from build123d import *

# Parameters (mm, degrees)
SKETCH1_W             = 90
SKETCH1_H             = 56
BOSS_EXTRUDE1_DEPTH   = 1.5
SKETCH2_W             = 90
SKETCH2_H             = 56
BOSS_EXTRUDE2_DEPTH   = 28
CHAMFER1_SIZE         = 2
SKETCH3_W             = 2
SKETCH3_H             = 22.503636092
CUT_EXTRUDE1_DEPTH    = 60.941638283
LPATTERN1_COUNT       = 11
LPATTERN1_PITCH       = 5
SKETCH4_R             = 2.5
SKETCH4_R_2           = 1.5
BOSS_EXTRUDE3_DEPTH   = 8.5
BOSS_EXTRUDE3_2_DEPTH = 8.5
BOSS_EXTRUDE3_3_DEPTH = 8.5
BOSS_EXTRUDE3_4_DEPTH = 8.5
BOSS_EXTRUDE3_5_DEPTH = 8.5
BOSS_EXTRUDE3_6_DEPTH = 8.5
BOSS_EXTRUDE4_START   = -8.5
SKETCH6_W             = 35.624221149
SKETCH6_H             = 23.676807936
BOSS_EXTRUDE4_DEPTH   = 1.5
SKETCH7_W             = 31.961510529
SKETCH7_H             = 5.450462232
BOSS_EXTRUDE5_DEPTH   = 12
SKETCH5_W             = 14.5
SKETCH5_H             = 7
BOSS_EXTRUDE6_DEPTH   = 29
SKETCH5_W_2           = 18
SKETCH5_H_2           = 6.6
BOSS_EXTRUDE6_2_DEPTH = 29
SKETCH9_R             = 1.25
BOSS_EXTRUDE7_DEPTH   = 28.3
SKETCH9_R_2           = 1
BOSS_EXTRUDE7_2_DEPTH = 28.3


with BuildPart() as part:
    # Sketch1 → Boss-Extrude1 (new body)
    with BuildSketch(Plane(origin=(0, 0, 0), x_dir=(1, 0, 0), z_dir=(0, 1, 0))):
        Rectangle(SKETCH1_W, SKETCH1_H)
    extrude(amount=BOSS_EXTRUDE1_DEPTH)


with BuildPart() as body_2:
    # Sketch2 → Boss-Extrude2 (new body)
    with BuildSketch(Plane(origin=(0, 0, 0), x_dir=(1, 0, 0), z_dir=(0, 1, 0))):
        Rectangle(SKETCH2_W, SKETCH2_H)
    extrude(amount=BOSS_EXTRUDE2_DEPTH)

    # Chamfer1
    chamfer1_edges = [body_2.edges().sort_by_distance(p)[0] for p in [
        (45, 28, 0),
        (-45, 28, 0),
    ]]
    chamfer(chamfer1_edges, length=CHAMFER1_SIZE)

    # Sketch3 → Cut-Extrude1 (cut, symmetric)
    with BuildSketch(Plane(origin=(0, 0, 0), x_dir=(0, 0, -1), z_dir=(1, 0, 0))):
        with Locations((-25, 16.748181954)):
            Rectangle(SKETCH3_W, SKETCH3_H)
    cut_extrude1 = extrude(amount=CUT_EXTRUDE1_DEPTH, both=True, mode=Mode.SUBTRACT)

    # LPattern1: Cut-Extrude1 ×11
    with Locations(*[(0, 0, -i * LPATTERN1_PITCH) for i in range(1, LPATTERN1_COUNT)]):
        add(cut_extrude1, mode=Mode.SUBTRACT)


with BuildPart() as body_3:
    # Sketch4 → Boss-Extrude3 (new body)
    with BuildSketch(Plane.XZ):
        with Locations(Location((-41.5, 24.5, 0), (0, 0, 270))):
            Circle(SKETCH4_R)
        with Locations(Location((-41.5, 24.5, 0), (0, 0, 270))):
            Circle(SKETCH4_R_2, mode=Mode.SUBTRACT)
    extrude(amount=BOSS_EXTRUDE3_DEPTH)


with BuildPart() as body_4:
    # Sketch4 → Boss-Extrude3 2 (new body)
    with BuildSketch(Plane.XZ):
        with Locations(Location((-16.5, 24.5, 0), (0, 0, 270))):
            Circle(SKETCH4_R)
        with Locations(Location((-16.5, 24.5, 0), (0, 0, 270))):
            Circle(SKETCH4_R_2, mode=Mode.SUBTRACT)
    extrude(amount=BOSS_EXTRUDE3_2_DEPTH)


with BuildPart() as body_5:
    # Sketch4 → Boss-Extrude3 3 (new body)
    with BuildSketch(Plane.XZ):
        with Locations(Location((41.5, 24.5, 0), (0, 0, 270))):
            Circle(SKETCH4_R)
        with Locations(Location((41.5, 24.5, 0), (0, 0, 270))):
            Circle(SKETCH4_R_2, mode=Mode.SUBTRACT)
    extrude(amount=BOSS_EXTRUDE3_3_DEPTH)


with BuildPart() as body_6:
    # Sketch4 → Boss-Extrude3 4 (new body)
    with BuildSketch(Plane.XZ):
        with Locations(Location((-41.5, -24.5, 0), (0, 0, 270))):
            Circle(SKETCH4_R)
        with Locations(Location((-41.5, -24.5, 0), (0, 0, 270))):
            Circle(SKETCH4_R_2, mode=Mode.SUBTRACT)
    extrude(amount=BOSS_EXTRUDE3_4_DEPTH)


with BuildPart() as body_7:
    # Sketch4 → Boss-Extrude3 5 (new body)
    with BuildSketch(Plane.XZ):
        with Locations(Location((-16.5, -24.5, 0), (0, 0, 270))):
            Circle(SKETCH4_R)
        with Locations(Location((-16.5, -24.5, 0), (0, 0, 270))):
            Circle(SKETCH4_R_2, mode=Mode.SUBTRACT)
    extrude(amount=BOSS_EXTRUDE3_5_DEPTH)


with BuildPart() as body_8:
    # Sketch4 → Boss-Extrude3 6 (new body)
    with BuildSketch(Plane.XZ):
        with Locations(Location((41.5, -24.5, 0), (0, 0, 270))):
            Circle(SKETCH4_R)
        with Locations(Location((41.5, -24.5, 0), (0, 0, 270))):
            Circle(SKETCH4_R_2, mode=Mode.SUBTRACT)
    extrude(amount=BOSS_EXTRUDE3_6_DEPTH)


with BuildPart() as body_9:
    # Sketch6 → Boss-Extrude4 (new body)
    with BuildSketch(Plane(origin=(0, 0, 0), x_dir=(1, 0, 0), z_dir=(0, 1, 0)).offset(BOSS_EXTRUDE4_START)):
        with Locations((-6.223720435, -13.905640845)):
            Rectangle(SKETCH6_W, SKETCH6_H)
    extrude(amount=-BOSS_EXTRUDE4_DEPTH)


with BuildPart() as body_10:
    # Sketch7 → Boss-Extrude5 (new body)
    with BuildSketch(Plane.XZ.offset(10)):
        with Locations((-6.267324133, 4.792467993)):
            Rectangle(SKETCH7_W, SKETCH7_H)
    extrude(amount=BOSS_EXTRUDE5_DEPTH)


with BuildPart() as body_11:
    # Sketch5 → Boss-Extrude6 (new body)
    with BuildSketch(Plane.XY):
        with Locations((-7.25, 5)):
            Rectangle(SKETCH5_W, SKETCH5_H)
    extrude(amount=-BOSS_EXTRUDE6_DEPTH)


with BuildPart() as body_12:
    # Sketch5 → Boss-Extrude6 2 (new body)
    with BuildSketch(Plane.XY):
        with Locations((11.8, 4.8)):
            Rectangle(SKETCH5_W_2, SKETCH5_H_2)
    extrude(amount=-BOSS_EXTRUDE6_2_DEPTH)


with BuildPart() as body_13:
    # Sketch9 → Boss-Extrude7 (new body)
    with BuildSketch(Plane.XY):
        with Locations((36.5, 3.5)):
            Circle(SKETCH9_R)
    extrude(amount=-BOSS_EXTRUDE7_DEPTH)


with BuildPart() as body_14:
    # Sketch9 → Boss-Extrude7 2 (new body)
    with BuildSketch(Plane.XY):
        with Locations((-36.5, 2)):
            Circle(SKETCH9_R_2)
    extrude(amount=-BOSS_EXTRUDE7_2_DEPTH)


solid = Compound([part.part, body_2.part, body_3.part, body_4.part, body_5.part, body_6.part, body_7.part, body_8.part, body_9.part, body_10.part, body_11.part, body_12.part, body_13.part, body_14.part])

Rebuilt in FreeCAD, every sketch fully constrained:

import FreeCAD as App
import Part
import Sketcher
from FreeCAD import Vector


def edges_at(feature, points):
    """Names of the edges that pass closest to the given points."""
    edges = feature.Shape.Edges
    near = lambda p: min(range(len(edges)), key=lambda i: edges[i].distToShape(Part.Vertex(*p))[0])
    return sorted({f"Edge{near(p) + 1}" for p in points})


def add_polygon(sketch, points):
    """Adds a closed chain of lines whose ends are joined by coincident constraints."""
    first, n = sketch.GeometryCount, len(points)
    for a, b in zip(points, points[1:] + points[:1]):
        sketch.addGeometry(Part.LineSegment(App.Vector(*a, 0), App.Vector(*b, 0)), False)
    for i in range(n):
        sketch.addConstraint(Sketcher.Constraint("Coincident", first + i, 2, first + (i + 1) % n, 1))

doc = App.newDocument("Part")
body = doc.addObject("PartDesign::Body", "Body")

# Sketch on XZ plane
sketch1 = body.newObject("Sketcher::SketchObject", "Sketch")
sketch1.AttachmentSupport = (doc.getObject("XZ_Plane"), [""])
sketch1.MapMode = "FlatFace"
add_polygon(sketch1, [(-45, -28), (-45, 28), (45, 28), (45, -28)])  # lines 0-3
sketch1.addConstraint([
    Sketcher.Constraint("Vertical", 0),
    Sketcher.Constraint("Horizontal", 1),
    Sketcher.Constraint("Vertical", 2),
    Sketcher.Constraint("Horizontal", 3),
    Sketcher.Constraint("Symmetric", 0, 2, 2, 2, -1, 1),
    Sketcher.Constraint("DistanceX", 1, 1, 1, 2, 90.0),
    Sketcher.Constraint("DistanceY", 0, 1, 0, 2, 56.0),
])
pad1 = body.newObject("PartDesign::Pad", "Pad")
pad1.Profile = sketch1
pad1.Length = 1.5
pad1.Reversed = True
body2 = doc.addObject("PartDesign::Body", "Body001")

# Sketch on XZ plane
sketch2 = body2.newObject("Sketcher::SketchObject", "Sketch001")
sketch2.AttachmentSupport = (doc.getObject("XZ_Plane001"), [""])
sketch2.MapMode = "FlatFace"
add_polygon(sketch2, [(-45, -28), (-45, 28), (45, 28), (45, -28)])  # lines 0-3
sketch2.addConstraint([
    Sketcher.Constraint("Vertical", 0),
    Sketcher.Constraint("Horizontal", 1),
    Sketcher.Constraint("Vertical", 2),
    Sketcher.Constraint("Horizontal", 3),
    Sketcher.Constraint("Symmetric", 0, 2, 2, 2, -1, 1),
    Sketcher.Constraint("DistanceX", 1, 1, 1, 2, 90.0),
    Sketcher.Constraint("DistanceY", 0, 1, 0, 2, 56.0),
])
pad2 = body2.newObject("PartDesign::Pad", "Pad001")
pad2.Profile = sketch2
pad2.Length = 28
pad2.Reversed = True
doc.recompute()

chamfer = body2.newObject("PartDesign::Chamfer", "Chamfer")
chamfer.Base = (pad2, edges_at(pad2, [(45, 28, 0), (-45, 28, 0)]))
chamfer.Size = 2

# Sketch on YZ plane
sketch3 = body2.newObject("Sketcher::SketchObject", "Sketch002")
sketch3.AttachmentSupport = (doc.getObject("YZ_Plane001"), [""])
sketch3.MapMode = "FlatFace"
add_polygon(sketch3, [(28, 26), (5.496364, 26), (5.496364, 24), (28, 24)])  # lines 0-3
sketch3.addConstraint([
    Sketcher.Constraint("Horizontal", 0),
    Sketcher.Constraint("Vertical", 1),
    Sketcher.Constraint("Horizontal", 2),
    Sketcher.Constraint("Vertical", 3),
    Sketcher.Constraint("DistanceY", 1, 2, 1, 1, 2.0),
    Sketcher.Constraint("DistanceY", -1, 1, 0, 2, 26.0),
    Sketcher.Constraint("DistanceX", -1, 1, 2, 2, 28.0),
    Sketcher.Constraint("DistanceX", 0, 2, 0, 1, 22.503636),
])
pocket1 = body2.newObject("PartDesign::Pocket", "Pocket")
pocket1.Profile = sketch3
pocket1.Length = 121.883277
pocket1.Midplane = True
doc.recompute()

linearpattern = body2.newObject("PartDesign::LinearPattern", "LinearPattern")
linearpattern.Originals = [pocket1]
linearpattern.Direction = (doc.getObject("Z_Axis001"), [""])
linearpattern.Mode = "offset"
linearpattern.Offset = 5
linearpattern.Occurrences = 11
linearpattern.Reversed = True
body2.Tip = linearpattern
body3 = doc.addObject("PartDesign::Body", "Body002")

# Sketch on XZ plane
sketch4 = body3.newObject("Sketcher::SketchObject", "Sketch003")
sketch4.AttachmentSupport = (doc.getObject("XZ_Plane002"), [""])
sketch4.MapMode = "FlatFace"
sketch4.addGeometry([
    Part.Circle(Vector(-41.5, 24.5, 0), Vector(0, 0, 1), 2.5),
    Part.Circle(Vector(-41.5, 24.5, 0), Vector(0, 0, 1), 1.5),
], False)
sketch4.addConstraint([
    Sketcher.Constraint("Coincident", 1, 3, 0, 3),
    Sketcher.Constraint("Diameter", 0, 5.0),
    Sketcher.Constraint("Diameter", 1, 3.0),
    Sketcher.Constraint("DistanceX", 0, 3, -1, 1, 41.5),
    Sketcher.Constraint("DistanceY", -1, 1, 0, 3, 24.5),
])
pad3 = body3.newObject("PartDesign::Pad", "Pad002")
pad3.Profile = sketch4
pad3.Length = 8.5
body4 = doc.addObject("PartDesign::Body", "Body003")

# Sketch on XZ plane
sketch5 = body4.newObject("Sketcher::SketchObject", "Sketch004")
sketch5.AttachmentSupport = (doc.getObject("XZ_Plane003"), [""])
sketch5.MapMode = "FlatFace"
sketch5.addGeometry([
    Part.Circle(Vector(-16.5, 24.5, 0), Vector(0, 0, 1), 2.5),
    Part.Circle(Vector(-16.5, 24.5, 0), Vector(0, 0, 1), 1.5),
], False)
sketch5.addConstraint([
    Sketcher.Constraint("Coincident", 1, 3, 0, 3),
    Sketcher.Constraint("Diameter", 0, 5.0),
    Sketcher.Constraint("Diameter", 1, 3.0),
    Sketcher.Constraint("DistanceX", 0, 3, -1, 1, 16.5),
    Sketcher.Constraint("DistanceY", -1, 1, 0, 3, 24.5),
])
pad4 = body4.newObject("PartDesign::Pad", "Pad003")
pad4.Profile = sketch5
pad4.Length = 8.5
body5 = doc.addObject("PartDesign::Body", "Body004")

# Sketch on XZ plane
sketch6 = body5.newObject("Sketcher::SketchObject", "Sketch005")
sketch6.AttachmentSupport = (doc.getObject("XZ_Plane004"), [""])
sketch6.MapMode = "FlatFace"
sketch6.addGeometry([
    Part.Circle(Vector(41.5, 24.5, 0), Vector(0, 0, 1), 2.5),
    Part.Circle(Vector(41.5, 24.5, 0), Vector(0, 0, 1), 1.5),
], False)
sketch6.addConstraint([
    Sketcher.Constraint("Coincident", 1, 3, 0, 3),
    Sketcher.Constraint("Diameter", 0, 5.0),
    Sketcher.Constraint("Diameter", 1, 3.0),
    Sketcher.Constraint("DistanceX", -1, 1, 0, 3, 41.5),
    Sketcher.Constraint("DistanceY", -1, 1, 0, 3, 24.5),
])
pad5 = body5.newObject("PartDesign::Pad", "Pad004")
pad5.Profile = sketch6
pad5.Length = 8.5
body6 = doc.addObject("PartDesign::Body", "Body005")

# Sketch on XZ plane
sketch7 = body6.newObject("Sketcher::SketchObject", "Sketch006")
sketch7.AttachmentSupport = (doc.getObject("XZ_Plane005"), [""])
sketch7.MapMode = "FlatFace"
sketch7.addGeometry([
    Part.Circle(Vector(-41.5, -24.5, 0), Vector(0, 0, 1), 2.5),
    Part.Circle(Vector(-41.5, -24.5, 0), Vector(0, 0, 1), 1.5),
], False)
sketch7.addConstraint([
    Sketcher.Constraint("Coincident", 1, 3, 0, 3),
    Sketcher.Constraint("Diameter", 0, 5.0),
    Sketcher.Constraint("Diameter", 1, 3.0),
    Sketcher.Constraint("DistanceX", 0, 3, -1, 1, 41.5),
    Sketcher.Constraint("DistanceY", 0, 3, -1, 1, 24.5),
])
pad6 = body6.newObject("PartDesign::Pad", "Pad005")
pad6.Profile = sketch7
pad6.Length = 8.5
body7 = doc.addObject("PartDesign::Body", "Body006")

# Sketch on XZ plane
sketch8 = body7.newObject("Sketcher::SketchObject", "Sketch007")
sketch8.AttachmentSupport = (doc.getObject("XZ_Plane006"), [""])
sketch8.MapMode = "FlatFace"
sketch8.addGeometry([
    Part.Circle(Vector(-16.5, -24.5, 0), Vector(0, 0, 1), 2.5),
    Part.Circle(Vector(-16.5, -24.5, 0), Vector(0, 0, 1), 1.5),
], False)
sketch8.addConstraint([
    Sketcher.Constraint("Coincident", 1, 3, 0, 3),
    Sketcher.Constraint("Diameter", 0, 5.0),
    Sketcher.Constraint("Diameter", 1, 3.0),
    Sketcher.Constraint("DistanceX", 0, 3, -1, 1, 16.5),
    Sketcher.Constraint("DistanceY", 0, 3, -1, 1, 24.5),
])
pad7 = body7.newObject("PartDesign::Pad", "Pad006")
pad7.Profile = sketch8
pad7.Length = 8.5
body8 = doc.addObject("PartDesign::Body", "Body007")

# Sketch on XZ plane
sketch9 = body8.newObject("Sketcher::SketchObject", "Sketch008")
sketch9.AttachmentSupport = (doc.getObject("XZ_Plane007"), [""])
sketch9.MapMode = "FlatFace"
sketch9.addGeometry([
    Part.Circle(Vector(41.5, -24.5, 0), Vector(0, 0, 1), 2.5),
    Part.Circle(Vector(41.5, -24.5, 0), Vector(0, 0, 1), 1.5),
], False)
sketch9.addConstraint([
    Sketcher.Constraint("Coincident", 1, 3, 0, 3),
    Sketcher.Constraint("Diameter", 0, 5.0),
    Sketcher.Constraint("Diameter", 1, 3.0),
    Sketcher.Constraint("DistanceX", -1, 1, 0, 3, 41.5),
    Sketcher.Constraint("DistanceY", 0, 3, -1, 1, 24.5),
])
pad8 = body8.newObject("PartDesign::Pad", "Pad007")
pad8.Profile = sketch9
pad8.Length = 8.5
body9 = doc.addObject("PartDesign::Body", "Body008")

# Sketch on XZ plane
sketch10 = body9.newObject("Sketcher::SketchObject", "Sketch009")
sketch10.AttachmentSupport = (doc.getObject("XZ_Plane008"), [""])
sketch10.MapMode = "FlatFace"
sketch10.AttachmentOffset = App.Placement(Vector(0, 0, 8.5), App.Rotation())
add_polygon(sketch10, [(-24.035831, 2.067237), (-24.035831, 25.744045), (11.58839, 25.744045), (11.58839, 2.067237)])  # lines 0-3
sketch10.addConstraint([
    Sketcher.Constraint("Vertical", 0),
    Sketcher.Constraint("Horizontal", 1),
    Sketcher.Constraint("Vertical", 2),
    Sketcher.Constraint("Horizontal", 3),
    Sketcher.Constraint("DistanceX", 1, 1, 1, 2, 35.624221),
    Sketcher.Constraint("DistanceY", 0, 1, 0, 2, 23.676808),
    Sketcher.Constraint("DistanceX", 0, 2, -1, 1, 24.035831),
    Sketcher.Constraint("DistanceY", -1, 1, 0, 2, 25.744045),
])
pad9 = body9.newObject("PartDesign::Pad", "Pad008")
pad9.Profile = sketch10
pad9.Length = 1.5
body10 = doc.addObject("PartDesign::Body", "Body009")

# Sketch on XZ plane
sketch11 = body10.newObject("Sketcher::SketchObject", "Sketch010")
sketch11.AttachmentSupport = (doc.getObject("XZ_Plane009"), [""])
sketch11.MapMode = "FlatFace"
sketch11.AttachmentOffset = App.Placement(Vector(0, 0, 10), App.Rotation())
add_polygon(sketch11, [(-22.248079, 7.517699), (-22.248079, 2.067237), (9.713431, 2.067237), (9.713431, 7.517699)])  # lines 0-3
sketch11.addConstraint([
    Sketcher.Constraint("Vertical", 0),
    Sketcher.Constraint("Horizontal", 1),
    Sketcher.Constraint("Vertical", 2),
    Sketcher.Constraint("Horizontal", 3),
    Sketcher.Constraint("DistanceX", 1, 1, 1, 2, 31.961511),
    Sketcher.Constraint("DistanceY", -1, 1, 2, 2, 7.517699),
    Sketcher.Constraint("DistanceY", 0, 2, 0, 1, 5.450462),
    Sketcher.Constraint("DistanceX", 0, 2, -1, 1, 22.248079),
])
pad10 = body10.newObject("PartDesign::Pad", "Pad009")
pad10.Profile = sketch11
pad10.Length = 12
body11 = doc.addObject("PartDesign::Body", "Body010")

# Sketch on XY plane
sketch12 = body11.newObject("Sketcher::SketchObject", "Sketch011")
sketch12.AttachmentSupport = (doc.getObject("XY_Plane010"), [""])
sketch12.MapMode = "FlatFace"
add_polygon(sketch12, [(-14.5, 8.5), (-14.5, 1.5), (0, 1.5), (0, 8.5)])  # lines 0-3
sketch12.addConstraint([
    Sketcher.Constraint("Vertical", 0),
    Sketcher.Constraint("Horizontal", 1),
    Sketcher.Constraint("Vertical", 2),
    Sketcher.Constraint("Horizontal", 3),
    Sketcher.Constraint("PointOnObject", 1, 2, -2),
    Sketcher.Constraint("DistanceY", 0, 2, 0, 1, 7.0),
    Sketcher.Constraint("DistanceX", 1, 1, 1, 2, 14.5),
    Sketcher.Constraint("DistanceY", -1, 1, 0, 2, 1.5),
])
pad11 = body11.newObject("PartDesign::Pad", "Pad010")
pad11.Profile = sketch12
pad11.Length = 29
pad11.Reversed = True
body12 = doc.addObject("PartDesign::Body", "Body011")

# Sketch on XY plane
sketch13 = body12.newObject("Sketcher::SketchObject", "Sketch012")
sketch13.AttachmentSupport = (doc.getObject("XY_Plane011"), [""])
sketch13.MapMode = "FlatFace"
add_polygon(sketch13, [(2.8, 8.1), (2.8, 1.5), (20.8, 1.5), (20.8, 8.1)])  # lines 0-3
sketch13.addConstraint([
    Sketcher.Constraint("Vertical", 0),
    Sketcher.Constraint("Horizontal", 1),
    Sketcher.Constraint("Vertical", 2),
    Sketcher.Constraint("Horizontal", 3),
    Sketcher.Constraint("DistanceX", 1, 1, 1, 2, 18.0),
    Sketcher.Constraint("DistanceY", 0, 2, 0, 1, 6.6),
    Sketcher.Constraint("DistanceX", -1, 1, 0, 2, 2.8),
    Sketcher.Constraint("DistanceY", -1, 1, 0, 2, 1.5),
])
pad12 = body12.newObject("PartDesign::Pad", "Pad011")
pad12.Profile = sketch13
pad12.Length = 29
pad12.Reversed = True
body13 = doc.addObject("PartDesign::Body", "Body012")

# Sketch on XY plane
sketch14 = body13.newObject("Sketcher::SketchObject", "Sketch013")
sketch14.AttachmentSupport = (doc.getObject("XY_Plane012"), [""])
sketch14.MapMode = "FlatFace"
sketch14.addGeometry(Part.Circle(Vector(36.5, 3.5, 0), Vector(0, 0, 1), 1.25), False)
sketch14.addConstraint([
    Sketcher.Constraint("Diameter", 0, 2.5),
    Sketcher.Constraint("DistanceX", -1, 1, 0, 3, 36.5),
    Sketcher.Constraint("DistanceY", -1, 1, 0, 3, 3.5),
])
pad13 = body13.newObject("PartDesign::Pad", "Pad012")
pad13.Profile = sketch14
pad13.Length = 28.3
pad13.Reversed = True
body14 = doc.addObject("PartDesign::Body", "Body013")

# Sketch on XY plane
sketch15 = body14.newObject("Sketcher::SketchObject", "Sketch014")
sketch15.AttachmentSupport = (doc.getObject("XY_Plane013"), [""])
sketch15.MapMode = "FlatFace"
sketch15.addGeometry(Part.Circle(Vector(-36.5, 2, 0), Vector(0, 0, 1), 1), False)
sketch15.addConstraint([
    Sketcher.Constraint("Diameter", 0, 2.0),
    Sketcher.Constraint("DistanceY", -1, 1, 0, 3, 2.0),
    Sketcher.Constraint("DistanceX", 0, 3, -1, 1, 36.5),
])
pad14 = body14.newObject("PartDesign::Pad", "Pad013")
pad14.Profile = sketch15
pad14.Length = 28.3
pad14.Reversed = True

doc.recompute()
